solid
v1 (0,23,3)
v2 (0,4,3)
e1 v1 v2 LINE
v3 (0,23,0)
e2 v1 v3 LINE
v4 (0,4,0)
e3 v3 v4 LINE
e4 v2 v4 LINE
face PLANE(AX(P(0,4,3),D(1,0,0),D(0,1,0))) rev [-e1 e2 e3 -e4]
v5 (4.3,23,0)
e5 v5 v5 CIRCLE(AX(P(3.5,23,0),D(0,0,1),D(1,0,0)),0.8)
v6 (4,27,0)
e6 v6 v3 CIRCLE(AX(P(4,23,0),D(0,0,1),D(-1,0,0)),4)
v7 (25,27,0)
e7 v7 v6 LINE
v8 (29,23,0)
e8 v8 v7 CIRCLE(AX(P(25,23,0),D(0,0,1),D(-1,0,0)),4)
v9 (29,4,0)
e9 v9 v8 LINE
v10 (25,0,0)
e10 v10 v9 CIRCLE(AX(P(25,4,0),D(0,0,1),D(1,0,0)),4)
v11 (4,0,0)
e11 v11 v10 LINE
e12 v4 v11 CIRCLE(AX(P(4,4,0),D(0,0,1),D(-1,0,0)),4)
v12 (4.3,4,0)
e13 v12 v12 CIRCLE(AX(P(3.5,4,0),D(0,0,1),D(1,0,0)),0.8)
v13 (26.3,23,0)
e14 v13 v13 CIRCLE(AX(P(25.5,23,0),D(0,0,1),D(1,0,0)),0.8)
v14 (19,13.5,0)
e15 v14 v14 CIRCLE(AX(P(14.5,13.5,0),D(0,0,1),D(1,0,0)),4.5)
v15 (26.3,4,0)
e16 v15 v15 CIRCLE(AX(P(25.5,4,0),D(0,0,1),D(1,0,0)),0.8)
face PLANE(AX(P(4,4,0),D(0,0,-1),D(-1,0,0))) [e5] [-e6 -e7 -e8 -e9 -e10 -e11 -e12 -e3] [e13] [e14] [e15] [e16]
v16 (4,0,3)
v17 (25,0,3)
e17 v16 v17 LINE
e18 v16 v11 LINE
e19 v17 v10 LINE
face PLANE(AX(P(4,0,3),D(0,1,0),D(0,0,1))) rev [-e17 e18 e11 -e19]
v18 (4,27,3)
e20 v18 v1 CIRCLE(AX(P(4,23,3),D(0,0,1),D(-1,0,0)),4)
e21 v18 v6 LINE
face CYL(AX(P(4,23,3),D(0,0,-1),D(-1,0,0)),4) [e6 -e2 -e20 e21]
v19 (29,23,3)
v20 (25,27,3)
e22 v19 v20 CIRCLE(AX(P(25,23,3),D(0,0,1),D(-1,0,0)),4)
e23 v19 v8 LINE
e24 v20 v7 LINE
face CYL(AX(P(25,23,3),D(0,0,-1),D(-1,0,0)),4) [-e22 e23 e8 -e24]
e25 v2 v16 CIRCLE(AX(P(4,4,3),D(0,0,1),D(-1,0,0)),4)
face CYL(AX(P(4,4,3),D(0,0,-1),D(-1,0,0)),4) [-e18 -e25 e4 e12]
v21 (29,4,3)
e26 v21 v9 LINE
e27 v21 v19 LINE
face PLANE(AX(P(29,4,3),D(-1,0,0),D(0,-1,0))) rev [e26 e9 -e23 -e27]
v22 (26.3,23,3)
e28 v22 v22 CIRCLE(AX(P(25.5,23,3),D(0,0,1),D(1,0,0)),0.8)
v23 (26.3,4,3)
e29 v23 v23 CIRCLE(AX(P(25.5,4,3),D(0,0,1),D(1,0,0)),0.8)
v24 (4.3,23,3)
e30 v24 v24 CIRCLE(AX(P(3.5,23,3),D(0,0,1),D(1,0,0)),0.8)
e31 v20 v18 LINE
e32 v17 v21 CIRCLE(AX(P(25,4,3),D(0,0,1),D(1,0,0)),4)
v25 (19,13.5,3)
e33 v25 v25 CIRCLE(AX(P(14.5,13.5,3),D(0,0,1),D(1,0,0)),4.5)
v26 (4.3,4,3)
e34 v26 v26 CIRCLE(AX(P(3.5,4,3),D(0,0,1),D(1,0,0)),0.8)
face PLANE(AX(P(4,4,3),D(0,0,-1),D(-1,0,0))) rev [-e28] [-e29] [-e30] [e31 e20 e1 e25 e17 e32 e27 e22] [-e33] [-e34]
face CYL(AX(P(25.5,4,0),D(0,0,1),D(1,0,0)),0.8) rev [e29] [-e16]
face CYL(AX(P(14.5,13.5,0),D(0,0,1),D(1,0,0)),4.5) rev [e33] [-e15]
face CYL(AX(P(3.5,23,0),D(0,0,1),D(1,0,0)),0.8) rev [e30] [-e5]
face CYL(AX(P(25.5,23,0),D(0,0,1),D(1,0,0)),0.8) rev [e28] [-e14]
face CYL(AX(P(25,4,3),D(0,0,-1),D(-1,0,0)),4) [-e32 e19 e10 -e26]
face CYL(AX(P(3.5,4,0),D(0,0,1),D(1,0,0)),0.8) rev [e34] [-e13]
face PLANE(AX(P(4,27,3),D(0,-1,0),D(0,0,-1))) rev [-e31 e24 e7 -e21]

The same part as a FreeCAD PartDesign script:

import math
import FreeCAD as App
import Part
import Sketcher
from FreeCAD import Vector
Q = App.Units.Quantity

doc = App.newDocument("Part")
params = doc.addObject("Spreadsheet::Sheet", "Params")
for row, (alias, value) in enumerate([
    ("sketch1_radius", "4 mm"),
    ("sketch1_width", "21 mm"),
    ("sketch1_height", "19 mm"),
    ("pad1_length", "3 mm"),
    ("sketch2_diameter", "9 mm"),
    ("sketch3_diameter", "1.6 mm"),
], start=1):
    params.set(f"A{row}", alias)
    params.set(f"B{row}", "=" + value)
    params.setAlias(f"B{row}", alias)

body = doc.addObject("PartDesign::Body", "Body")

# Sketch on XY plane
sketch1 = body.newObject("Sketcher::SketchObject", "Sketch")
sketch1.AttachmentSupport = (doc.getObject("XY_Plane"), [""])
sketch1.MapMode = "FlatFace"
sketch1.addGeometry(Part.LineSegment(Vector(4, 0, 0), Vector(25, 0, 0)), False)
sketch1.addGeometry(Part.ArcOfCircle(Part.Circle(Vector(25, 4, 0), Vector(0, 0, 1), 4), math.radians(-90), math.radians(0)), False)
sketch1.addGeometry(Part.LineSegment(Vector(29, 4, 0), Vector(29, 23, 0)), False)
sketch1.addGeometry(Part.ArcOfCircle(Part.Circle(Vector(25, 23, 0), Vector(0, 0, 1), 4), math.radians(0), math.radians(90)), False)
sketch1.addGeometry(Part.LineSegment(Vector(25, 27, 0), Vector(4, 27, 0)), False)
sketch1.addGeometry(Part.ArcOfCircle(Part.Circle(Vector(4, 23, 0), Vector(0, 0, 1), 4), math.radians(90), math.radians(180)), False)
sketch1.addGeometry(Part.LineSegment(Vector(0, 23, 0), Vector(0, 4, 0)), False)
sketch1.addGeometry(Part.ArcOfCircle(Part.Circle(Vector(4, 4, 0), Vector(0, 0, 1), 4), math.radians(180), math.radians(270)), False)
sketch1.addConstraint(Sketcher.Constraint("Tangent", 0, 2, 1, 1))
sketch1.addConstraint(Sketcher.Constraint("Tangent", 1, 2, 2, 1))
sketch1.addConstraint(Sketcher.Constraint("Tangent", 2, 2, 3, 1))
sketch1.addConstraint(Sketcher.Constraint("Tangent", 3, 2, 4, 1))
sketch1.addConstraint(Sketcher.Constraint("Tangent", 4, 2, 5, 1))
sketch1.addConstraint(Sketcher.Constraint("Tangent", 5, 2, 6, 1))
sketch1.addConstraint(Sketcher.Constraint("Tangent", 6, 2, 7, 1))
sketch1.addConstraint(Sketcher.Constraint("Tangent", 7, 2, 0, 1))
sketch1.addConstraint(Sketcher.Constraint("Horizontal", 0))
sketch1.addConstraint(Sketcher.Constraint("Vertical", 2))
sketch1.addConstraint(Sketcher.Constraint("Horizontal", 4))
sketch1.addConstraint(Sketcher.Constraint("Vertical", 6))
sketch1.addConstraint(Sketcher.Constraint("Equal", 1, 3))
sketch1.addConstraint(Sketcher.Constraint("Equal", 3, 5))
sketch1.addConstraint(Sketcher.Constraint("Equal", 5, 7))
sketch1.addConstraint(Sketcher.Constraint("PointOnObject", 0, 2, -1))
sketch1.addConstraint(Sketcher.Constraint("PointOnObject", 5, 2, -2))
sketch1.addConstraint(Sketcher.Constraint("Radius", 1, Q("4 mm")))
sketch1.addConstraint(Sketcher.Constraint("DistanceX", 0, 1, 0, 2, Q("21 mm")))
sketch1.addConstraint(Sketcher.Constraint("DistanceY", 2, 1, 2, 2, Q("19 mm")))
sketch1.setExpression("Constraints[17]", "Params.sketch1_radius")
sketch1.setExpression("Constraints[18]", "Params.sketch1_width")
sketch1.setExpression("Constraints[19]", "Params.sketch1_height")
pad1 = body.newObject("PartDesign::Pad", "Pad")
pad1.Profile = sketch1
pad1.setExpression("Length", "Params.pad1_length")

# Sketch on XY plane
sketch2 = body.newObject("Sketcher::SketchObject", "Sketch001")
sketch2.AttachmentSupport = (doc.getObject("XY_Plane"), [""])
sketch2.MapMode = "FlatFace"
sketch2.AttachmentOffset = App.Placement(Vector(0, 0, 3), App.Rotation())
sketch2.addGeometry(Part.Circle(Vector(14.5, 13.5, 0), Vector(0, 0, 1), 4.5), False)
sketch2.addConstraint(Sketcher.Constraint("Diameter", 0, Q("9 mm")))
sketch2.addConstraint(Sketcher.Constraint("DistanceX", -1, 1, 0, 3, Q("14.5 mm")))
sketch2.addConstraint(Sketcher.Constraint("DistanceY", -1, 1, 0, 3, Q("13.5 mm")))
sketch2.setExpression("Constraints[0]", "Params.sketch2_diameter")
pocket1 = body.newObject("PartDesign::Pocket", "Pocket")
pocket1.Profile = sketch2
pocket1.Type = "ThroughAll"

# Sketch on XY plane
sketch3 = body.newObject("Sketcher::SketchObject", "Sketch002")
sketch3.AttachmentSupport = (doc.getObject("XY_Plane"), [""])
sketch3.MapMode = "FlatFace"
sketch3.AttachmentOffset = App.Placement(Vector(0, 0, 3), App.Rotation())
sketch3.addGeometry(Part.Circle(Vector(3.5, 4, 0), Vector(0, 0, 1), 0.8), False)
sketch3.addGeometry(Part.Circle(Vector(25.5, 4, 0), Vector(0, 0, 1), 0.8), False)
sketch3.addGeometry(Part.Circle(Vector(25.5, 23, 0), Vector(0, 0, 1), 0.8), False)
sketch3.addGeometry(Part.Circle(Vector(3.5, 23, 0), Vector(0, 0, 1), 0.8), False)
sketch3.addConstraint(Sketcher.Constraint("Equal", 0, 1))
sketch3.addConstraint(Sketcher.Constraint("Equal", 1, 2))
sketch3.addConstraint(Sketcher.Constraint("Equal", 2, 3))
sketch3.addConstraint(Sketcher.Constraint("Horizontal", 0, 3, 1, 3))
sketch3.addConstraint(Sketcher.Constraint("Horizontal", 2, 3, 3, 3))
sketch3.addConstraint(Sketcher.Constraint("Vertical", 1, 3, 2, 3))
sketch3.addConstraint(Sketcher.Constraint("Vertical", 0, 3, 3, 3))
sketch3.addConstraint(Sketcher.Constraint("Diameter", 0, Q("1.6 mm")))
sketch3.addConstraint(Sketcher.Constraint("DistanceY", -1, 1, 0, 3, Q("4 mm")))
sketch3.addConstraint(Sketcher.Constraint("DistanceY", -1, 1, 2, 3, Q("23 mm")))
sketch3.addConstraint(Sketcher.Constraint("DistanceX", 0, 3, 1, 3, Q("22 mm")))
sketch3.addConstraint(Sketcher.Constraint("DistanceX", -1, 1, 0, 3, Q("3.5 mm")))
sketch3.setExpression("Constraints[7]", "Params.sketch3_diameter")
pocket2 = body.newObject("PartDesign::Pocket", "Pocket001")
pocket2.Profile = sketch3
pocket2.Type = "ThroughAll"

doc.recompute()
